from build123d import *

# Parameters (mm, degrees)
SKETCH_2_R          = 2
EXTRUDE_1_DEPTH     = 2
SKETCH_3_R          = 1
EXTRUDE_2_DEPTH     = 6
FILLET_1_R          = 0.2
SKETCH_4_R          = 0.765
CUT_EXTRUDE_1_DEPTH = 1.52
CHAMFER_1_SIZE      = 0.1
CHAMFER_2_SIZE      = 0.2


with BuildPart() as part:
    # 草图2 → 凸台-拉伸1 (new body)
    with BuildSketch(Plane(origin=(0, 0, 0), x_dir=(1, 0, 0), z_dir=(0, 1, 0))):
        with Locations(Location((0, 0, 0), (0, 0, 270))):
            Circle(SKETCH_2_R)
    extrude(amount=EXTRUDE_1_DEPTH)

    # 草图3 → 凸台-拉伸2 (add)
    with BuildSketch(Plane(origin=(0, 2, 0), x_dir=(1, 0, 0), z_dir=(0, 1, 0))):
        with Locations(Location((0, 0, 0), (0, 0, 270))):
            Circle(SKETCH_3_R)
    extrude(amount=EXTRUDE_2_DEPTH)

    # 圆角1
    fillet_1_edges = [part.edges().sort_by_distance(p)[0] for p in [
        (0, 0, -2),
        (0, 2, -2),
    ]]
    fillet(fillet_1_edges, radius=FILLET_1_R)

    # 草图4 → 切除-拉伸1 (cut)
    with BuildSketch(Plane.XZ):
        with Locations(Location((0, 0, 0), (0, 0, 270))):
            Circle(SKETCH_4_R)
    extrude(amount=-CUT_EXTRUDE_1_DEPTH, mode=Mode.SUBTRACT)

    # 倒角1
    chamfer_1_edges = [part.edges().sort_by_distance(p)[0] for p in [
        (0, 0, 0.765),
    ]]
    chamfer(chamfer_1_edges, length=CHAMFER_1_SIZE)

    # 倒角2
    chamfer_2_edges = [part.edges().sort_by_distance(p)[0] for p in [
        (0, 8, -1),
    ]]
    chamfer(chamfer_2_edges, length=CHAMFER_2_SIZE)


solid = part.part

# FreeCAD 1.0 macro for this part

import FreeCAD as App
import Part
import Sketcher
from FreeCAD import Vector


def edges_at(feature, points):
    """Names of the edges that pass closest to the given points."""
    edges = feature.Shape.Edges
    near = lambda p: min(range(len(edges)), key=lambda i: edges[i].distToShape(Part.Vertex(*p))[0])
    return sorted({f"Edge{near(p) + 1}" for p in points})

doc = App.newDocument("Part")
body = doc.addObject("PartDesign::Body", "Body")

# Sketch on XZ plane
sketch1 = doc.addObject("Sketcher::SketchObject", "Sketch")
body.addObject(sketch1)
sketch1.AttachmentSupport = (doc.XZ_Plane, [""])
sketch1.MapMode = "FlatFace"
sketch1.addGeometry(Part.Circle(Vector(0, 0, 0), Vector(0, 0, 1), 2), False)
sketch1.addConstraint([
    Sketcher.Constraint("Coincident", 0, 3, -1, 1),
    Sketcher.Constraint("Diameter", 0, 4.0),
])
pad1 = doc.addObject("PartDesign::Pad", "Pad")
body.addObject(pad1)
pad1.Profile = sketch1
pad1.Length = 2
pad1.Reversed = True

# Sketch on XZ plane
sketch2 = doc.addObject("Sketcher::SketchObject", "Sketch001")
body.addObject(sketch2)
sketch2.AttachmentSupport = (doc.XZ_Plane, [""])
sketch2.MapMode = "FlatFace"
sketch2.AttachmentOffset = App.Placement(Vector(0, 0, -2), App.Rotation())
sketch2.addGeometry(Part.Circle(Vector(0, 0, 0), Vector(0, 0, 1), 1), False)
sketch2.addConstraint([
    Sketcher.Constraint("Coincident", 0, 3, -1, 1),
    Sketcher.Constraint("Diameter", 0, 2.0),
])
pad2 = doc.addObject("PartDesign::Pad", "Pad001")
body.addObject(pad2)
pad2.Profile = sketch2
pad2.Length = 6
pad2.Reversed = True
doc.recompute()

fillet = doc.addObject("PartDesign::Fillet", "Fillet")
body.addObject(fillet)
fillet.Base = (pad2, edges_at(pad2, [(0, 0, -2), (0, 2, -2)]))
fillet.Radius = 0.2

# Sketch on XZ plane
sketch3 = doc.addObject("Sketcher::SketchObject", "Sketch002")
body.addObject(sketch3)
sketch3.AttachmentSupport = (doc.XZ_Plane, [""])
sketch3.MapMode = "FlatFace"
sketch3.addGeometry(Part.Circle(Vector(0, 0, 0), Vector(0, 0, 1), 0.8), False)
sketch3.addConstraint([
    Sketcher.Constraint("Coincident", 0, 3, -1, 1),
    Sketcher.Constraint("Diameter", 0, 1.53),
])
pocket1 = doc.addObject("PartDesign::Pocket", "Pocket")
body.addObject(pocket1)
pocket1.Profile = sketch3
pocket1.Length = 1.52
doc.recompute()

chamfer = doc.addObject("PartDesign::Chamfer", "Chamfer")
body.addObject(chamfer)
chamfer.Base = (pocket1, edges_at(pocket1, [(0, 0, 0.765)]))
chamfer.Size = 0.1
doc.recompute()

chamfer2 = doc.addObject("PartDesign::Chamfer", "Chamfer001")
body.addObject(chamfer2)
chamfer2.Base = (chamfer, edges_at(chamfer, [(0, 8, -1)]))
chamfer2.Size = 0.2

doc.recompute()
